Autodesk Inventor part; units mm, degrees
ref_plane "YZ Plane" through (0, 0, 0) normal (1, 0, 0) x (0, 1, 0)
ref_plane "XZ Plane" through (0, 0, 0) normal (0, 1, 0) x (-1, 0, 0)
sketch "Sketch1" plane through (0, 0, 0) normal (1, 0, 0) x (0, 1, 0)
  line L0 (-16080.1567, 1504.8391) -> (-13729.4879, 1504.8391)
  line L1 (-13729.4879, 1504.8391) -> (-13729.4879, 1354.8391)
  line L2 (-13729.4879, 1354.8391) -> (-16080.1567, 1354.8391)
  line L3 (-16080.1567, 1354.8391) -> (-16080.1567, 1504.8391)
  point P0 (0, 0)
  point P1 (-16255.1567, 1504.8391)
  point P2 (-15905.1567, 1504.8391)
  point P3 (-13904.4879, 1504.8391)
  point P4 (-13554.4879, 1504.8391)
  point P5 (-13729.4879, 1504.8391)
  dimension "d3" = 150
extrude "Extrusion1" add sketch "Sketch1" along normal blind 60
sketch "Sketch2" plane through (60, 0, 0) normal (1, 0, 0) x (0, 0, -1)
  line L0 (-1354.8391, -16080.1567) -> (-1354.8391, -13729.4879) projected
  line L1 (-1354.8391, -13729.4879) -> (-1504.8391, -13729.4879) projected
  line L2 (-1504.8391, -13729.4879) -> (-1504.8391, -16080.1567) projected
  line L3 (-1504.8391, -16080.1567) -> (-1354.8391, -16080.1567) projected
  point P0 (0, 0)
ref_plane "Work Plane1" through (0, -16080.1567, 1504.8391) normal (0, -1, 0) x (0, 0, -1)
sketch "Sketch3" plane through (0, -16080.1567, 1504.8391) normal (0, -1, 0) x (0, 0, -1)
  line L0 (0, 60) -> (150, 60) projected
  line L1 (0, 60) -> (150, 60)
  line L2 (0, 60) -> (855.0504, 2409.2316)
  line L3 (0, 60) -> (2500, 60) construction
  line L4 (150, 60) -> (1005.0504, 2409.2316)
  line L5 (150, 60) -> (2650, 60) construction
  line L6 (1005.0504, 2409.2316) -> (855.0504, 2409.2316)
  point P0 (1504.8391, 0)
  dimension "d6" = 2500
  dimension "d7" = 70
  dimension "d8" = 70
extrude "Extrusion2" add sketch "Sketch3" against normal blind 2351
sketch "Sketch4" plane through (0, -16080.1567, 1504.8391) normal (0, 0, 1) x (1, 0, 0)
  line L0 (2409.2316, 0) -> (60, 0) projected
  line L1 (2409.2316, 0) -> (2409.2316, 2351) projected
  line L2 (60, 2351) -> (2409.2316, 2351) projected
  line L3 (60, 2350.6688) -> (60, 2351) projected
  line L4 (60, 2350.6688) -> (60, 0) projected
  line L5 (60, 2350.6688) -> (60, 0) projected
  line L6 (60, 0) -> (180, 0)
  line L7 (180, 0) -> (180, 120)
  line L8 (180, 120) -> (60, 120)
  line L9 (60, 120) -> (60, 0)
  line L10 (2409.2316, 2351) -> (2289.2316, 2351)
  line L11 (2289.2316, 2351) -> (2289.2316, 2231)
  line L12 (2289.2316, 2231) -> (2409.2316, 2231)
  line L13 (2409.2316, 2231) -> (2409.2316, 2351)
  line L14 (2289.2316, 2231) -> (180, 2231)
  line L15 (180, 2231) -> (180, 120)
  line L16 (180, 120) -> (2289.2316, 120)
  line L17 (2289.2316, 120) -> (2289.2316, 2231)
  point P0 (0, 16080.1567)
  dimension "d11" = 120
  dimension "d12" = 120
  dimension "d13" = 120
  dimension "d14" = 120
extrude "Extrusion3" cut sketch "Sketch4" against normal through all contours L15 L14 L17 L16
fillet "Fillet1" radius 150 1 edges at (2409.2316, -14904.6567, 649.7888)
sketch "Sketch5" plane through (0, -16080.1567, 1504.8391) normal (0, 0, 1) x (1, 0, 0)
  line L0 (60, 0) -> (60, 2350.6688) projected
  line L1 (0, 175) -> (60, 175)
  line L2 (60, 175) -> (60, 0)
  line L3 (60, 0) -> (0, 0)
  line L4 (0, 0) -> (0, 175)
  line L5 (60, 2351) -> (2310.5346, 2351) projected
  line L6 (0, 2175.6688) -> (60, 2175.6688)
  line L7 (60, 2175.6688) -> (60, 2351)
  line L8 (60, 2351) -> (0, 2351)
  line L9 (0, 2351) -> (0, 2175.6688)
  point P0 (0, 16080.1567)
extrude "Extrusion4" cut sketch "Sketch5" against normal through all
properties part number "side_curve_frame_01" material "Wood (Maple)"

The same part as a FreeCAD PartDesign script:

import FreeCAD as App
import Part
import Sketcher

V = App.Vector
Q = App.Units.Quantity


def edges_at(feature, points):
    """Names of the edges that pass closest to the given points."""
    edges = feature.Shape.Edges
    near = lambda p: min(range(len(edges)), key=lambda i: edges[i].distToShape(Part.Vertex(*p))[0])
    return sorted({f"Edge{near(p) + 1}" for p in points})

doc = App.newDocument("Part")
body = doc.addObject("PartDesign::Body", "Body")

# Sketch on YZ plane
sketch1 = body.newObject("Sketcher::SketchObject", "Sketch")
sketch1.AttachmentSupport = (doc.getObject("YZ_Plane"), [""])
sketch1.MapMode = "FlatFace"
sketch1.addGeometry(Part.LineSegment(V(-13729, 1505, 0), V(-16080, 1505, 0)), False)
sketch1.addGeometry(Part.LineSegment(V(-16080, 1505, 0), V(-16080, 1355, 0)), False)
sketch1.addGeometry(Part.LineSegment(V(-16080, 1355, 0), V(-13729, 1355, 0)), False)
sketch1.addGeometry(Part.LineSegment(V(-13729, 1355, 0), V(-13729, 1505, 0)), False)
sketch1.addConstraint(Sketcher.Constraint("Coincident", 0, 2, 1, 1))
sketch1.addConstraint(Sketcher.Constraint("Coincident", 1, 2, 2, 1))
sketch1.addConstraint(Sketcher.Constraint("Coincident", 2, 2, 3, 1))
sketch1.addConstraint(Sketcher.Constraint("Coincident", 3, 2, 0, 1))
sketch1.addConstraint(Sketcher.Constraint("Horizontal", 0))
sketch1.addConstraint(Sketcher.Constraint("Vertical", 1))
sketch1.addConstraint(Sketcher.Constraint("Horizontal", 2))
sketch1.addConstraint(Sketcher.Constraint("Vertical", 3))
sketch1.addConstraint(Sketcher.Constraint("DistanceY", 1, 2, 1, 1, Q("150 mm")))
sketch1.addConstraint(Sketcher.Constraint("DistanceX", 0, 2, 0, 1, Q("2350.6688 mm")))
sketch1.addConstraint(Sketcher.Constraint("DistanceY", -1, 1, 0, 2, Q("1504.839 mm")))
sketch1.addConstraint(Sketcher.Constraint("DistanceX", 2, 2, -1, 1, Q("13729.488 mm")))
pad1 = body.newObject("PartDesign::Pad", "Pad")
pad1.Profile = sketch1
pad1.Length = 60

# Sketch on XZ plane
sketch2 = body.newObject("Sketcher::SketchObject", "Sketch001")
sketch2.AttachmentSupport = (doc.getObject("XZ_Plane"), [""])
sketch2.MapMode = "FlatFace"
sketch2.AttachmentOffset = App.Placement(V(0, 0, 16080.1567), App.Rotation())
sketch2.addGeometry(Part.LineSegment(V(2409, 650, 0), V(60, 1505, 0)), False)
sketch2.addGeometry(Part.LineSegment(V(60, 1505, 0), V(60, 1355, 0)), False)
sketch2.addGeometry(Part.LineSegment(V(60, 1355, 0), V(2409, 500, 0)), False)
sketch2.addGeometry(Part.LineSegment(V(2409, 500, 0), V(2409, 650, 0)), False)
sketch2.addConstraint(Sketcher.Constraint("Coincident", 0, 2, 1, 1))
sketch2.addConstraint(Sketcher.Constraint("Coincident", 1, 2, 2, 1))
sketch2.addConstraint(Sketcher.Constraint("Coincident", 2, 2, 3, 1))
sketch2.addConstraint(Sketcher.Constraint("Coincident", 3, 2, 0, 1))
sketch2.addConstraint(Sketcher.Constraint("Vertical", 1))
sketch2.addConstraint(Sketcher.Constraint("Vertical", 3))
sketch2.addConstraint(Sketcher.Constraint("Parallel", 0, 2))
sketch2.addConstraint(Sketcher.Constraint("Distance", 0, Q("2500 mm")))
sketch2.addConstraint(Sketcher.Constraint("DistanceY", 1, 2, 1, 1, Q("150 mm")))
sketch2.addConstraint(Sketcher.Constraint("Angle", 0, Q("160 deg")))
sketch2.addConstraint(Sketcher.Constraint("DistanceX", -1, 1, 0, 2, Q("60 mm")))
sketch2.addConstraint(Sketcher.Constraint("DistanceY", -1, 1, 0, 2, Q("1504.839 mm")))
pad2 = body.newObject("PartDesign::Pad", "Pad001")
pad2.Profile = sketch2
pad2.Length = 2351
pad2.Reversed = True

# Sketch on XY plane
sketch3 = body.newObject("Sketcher::SketchObject", "Sketch002")
sketch3.AttachmentSupport = (doc.getObject("XY_Plane"), [""])
sketch3.MapMode = "FlatFace"
sketch3.AttachmentOffset = App.Placement(V(0, 0, 1504.8391), App.Rotation())
sketch3.addGeometry(Part.LineSegment(V(180, -13849, 0), V(180, -15960, 0)), False)
sketch3.addGeometry(Part.LineSegment(V(180, -15960, 0), V(2289, -15960, 0)), False)
sketch3.addGeometry(Part.LineSegment(V(2289, -15960, 0), V(2289, -13849, 0)), False)
sketch3.addGeometry(Part.LineSegment(V(2289, -13849, 0), V(180, -13849, 0)), False)
sketch3.addConstraint(Sketcher.Constraint("Coincident", 0, 2, 1, 1))
sketch3.addConstraint(Sketcher.Constraint("Coincident", 1, 2, 2, 1))
sketch3.addConstraint(Sketcher.Constraint("Coincident", 2, 2, 3, 1))
sketch3.addConstraint(Sketcher.Constraint("Coincident", 3, 2, 0, 1))
sketch3.addConstraint(Sketcher.Constraint("Vertical", 0))
sketch3.addConstraint(Sketcher.Constraint("Horizontal", 1))
sketch3.addConstraint(Sketcher.Constraint("Vertical", 2))
sketch3.addConstraint(Sketcher.Constraint("Horizontal", 3))
sketch3.addConstraint(Sketcher.Constraint("DistanceY", 0, 2, 0, 1, Q("2111 mm")))
sketch3.addConstraint(Sketcher.Constraint("DistanceX", -1, 1, 0, 2, Q("180 mm")))
sketch3.addConstraint(Sketcher.Constraint("DistanceX", 1, 1, 1, 2, Q("2109.2316 mm")))
sketch3.addConstraint(Sketcher.Constraint("DistanceY", 0, 2, -1, 1, Q("15960.1567 mm")))
pocket1 = body.newObject("PartDesign::Pocket", "Pocket")
pocket1.Profile = sketch3
pocket1.Type = "ThroughAll"
doc.recompute()

fillet = body.newObject("PartDesign::Fillet", "Fillet")
fillet.Base = (pocket1, edges_at(pocket1, [(2409.232, -14904.657, 649.789)]))
fillet.Radius = 150

# Sketch on XY plane
sketch4 = body.newObject("Sketcher::SketchObject", "Sketch003")
sketch4.AttachmentSupport = (doc.getObject("XY_Plane"), [""])
sketch4.MapMode = "FlatFace"
sketch4.AttachmentOffset = App.Placement(V(0, 0, 1504.8391), App.Rotation())
sketch4.addGeometry(Part.LineSegment(V(0, -16080, 0), V(60, -16080, 0)), False)
sketch4.addGeometry(Part.LineSegment(V(60, -16080, 0), V(60, -15905, 0)), False)
sketch4.addGeometry(Part.LineSegment(V(60, -15905, 0), V(0, -15905, 0)), False)
sketch4.addGeometry(Part.LineSegment(V(0, -15905, 0), V(0, -16080, 0)), False)
sketch4.addGeometry(Part.LineSegment(V(0, -13904, 0), V(60, -13904, 0)), False)
sketch4.addGeometry(Part.LineSegment(V(60, -13904, 0), V(60, -13729, 0)), False)
sketch4.addGeometry(Part.LineSegment(V(60, -13729, 0), V(0, -13729, 0)), False)
sketch4.addGeometry(Part.LineSegment(V(0, -13729, 0), V(0, -13904, 0)), False)
sketch4.addConstraint(Sketcher.Constraint("Coincident", 0, 2, 1, 1))
sketch4.addConstraint(Sketcher.Constraint("Coincident", 1, 2, 2, 1))
sketch4.addConstraint(Sketcher.Constraint("Coincident", 2, 2, 3, 1))
sketch4.addConstraint(Sketcher.Constraint("Coincident", 3, 2, 0, 1))
sketch4.addConstraint(Sketcher.Constraint("Coincident", 4, 2, 5, 1))
sketch4.addConstraint(Sketcher.Constraint("Coincident", 5, 2, 6, 1))
sketch4.addConstraint(Sketcher.Constraint("Coincident", 6, 2, 7, 1))
sketch4.addConstraint(Sketcher.Constraint("Coincident", 7, 2, 4, 1))
sketch4.addConstraint(Sketcher.Constraint("Horizontal", 0))
sketch4.addConstraint(Sketcher.Constraint("Vertical", 1))
sketch4.addConstraint(Sketcher.Constraint("Horizontal", 2))
sketch4.addConstraint(Sketcher.Constraint("Vertical", 3))
sketch4.addConstraint(Sketcher.Constraint("Horizontal", 4))
sketch4.addConstraint(Sketcher.Constraint("Vertical", 5))
sketch4.addConstraint(Sketcher.Constraint("Horizontal", 6))
sketch4.addConstraint(Sketcher.Constraint("Vertical", 7))
sketch4.addConstraint(Sketcher.Constraint("PointOnObject", 2, 2, -2))
sketch4.addConstraint(Sketcher.Constraint("PointOnObject", 6, 2, -2))
sketch4.addConstraint(Sketcher.Constraint("Vertical", 1, 2, 4, 2))
sketch4.addConstraint(Sketcher.Constraint("DistanceX", 0, 1, 0, 2, Q("60 mm")))
sketch4.addConstraint(Sketcher.Constraint("DistanceY", 1, 1, 1, 2, Q("175 mm")))
sketch4.addConstraint(Sketcher.Constraint("DistanceY", 1, 2, 5, 2, Q("2176 mm")))
sketch4.addConstraint(Sketcher.Constraint("DistanceY", 5, 1, 5, 2, Q("175.3312 mm")))
sketch4.addConstraint(Sketcher.Constraint("DistanceY", 4, 2, -1, 1, Q("13904.488 mm")))
pocket2 = body.newObject("PartDesign::Pocket", "Pocket001")
pocket2.Profile = sketch4
pocket2.Type = "ThroughAll"

doc.recompute()
